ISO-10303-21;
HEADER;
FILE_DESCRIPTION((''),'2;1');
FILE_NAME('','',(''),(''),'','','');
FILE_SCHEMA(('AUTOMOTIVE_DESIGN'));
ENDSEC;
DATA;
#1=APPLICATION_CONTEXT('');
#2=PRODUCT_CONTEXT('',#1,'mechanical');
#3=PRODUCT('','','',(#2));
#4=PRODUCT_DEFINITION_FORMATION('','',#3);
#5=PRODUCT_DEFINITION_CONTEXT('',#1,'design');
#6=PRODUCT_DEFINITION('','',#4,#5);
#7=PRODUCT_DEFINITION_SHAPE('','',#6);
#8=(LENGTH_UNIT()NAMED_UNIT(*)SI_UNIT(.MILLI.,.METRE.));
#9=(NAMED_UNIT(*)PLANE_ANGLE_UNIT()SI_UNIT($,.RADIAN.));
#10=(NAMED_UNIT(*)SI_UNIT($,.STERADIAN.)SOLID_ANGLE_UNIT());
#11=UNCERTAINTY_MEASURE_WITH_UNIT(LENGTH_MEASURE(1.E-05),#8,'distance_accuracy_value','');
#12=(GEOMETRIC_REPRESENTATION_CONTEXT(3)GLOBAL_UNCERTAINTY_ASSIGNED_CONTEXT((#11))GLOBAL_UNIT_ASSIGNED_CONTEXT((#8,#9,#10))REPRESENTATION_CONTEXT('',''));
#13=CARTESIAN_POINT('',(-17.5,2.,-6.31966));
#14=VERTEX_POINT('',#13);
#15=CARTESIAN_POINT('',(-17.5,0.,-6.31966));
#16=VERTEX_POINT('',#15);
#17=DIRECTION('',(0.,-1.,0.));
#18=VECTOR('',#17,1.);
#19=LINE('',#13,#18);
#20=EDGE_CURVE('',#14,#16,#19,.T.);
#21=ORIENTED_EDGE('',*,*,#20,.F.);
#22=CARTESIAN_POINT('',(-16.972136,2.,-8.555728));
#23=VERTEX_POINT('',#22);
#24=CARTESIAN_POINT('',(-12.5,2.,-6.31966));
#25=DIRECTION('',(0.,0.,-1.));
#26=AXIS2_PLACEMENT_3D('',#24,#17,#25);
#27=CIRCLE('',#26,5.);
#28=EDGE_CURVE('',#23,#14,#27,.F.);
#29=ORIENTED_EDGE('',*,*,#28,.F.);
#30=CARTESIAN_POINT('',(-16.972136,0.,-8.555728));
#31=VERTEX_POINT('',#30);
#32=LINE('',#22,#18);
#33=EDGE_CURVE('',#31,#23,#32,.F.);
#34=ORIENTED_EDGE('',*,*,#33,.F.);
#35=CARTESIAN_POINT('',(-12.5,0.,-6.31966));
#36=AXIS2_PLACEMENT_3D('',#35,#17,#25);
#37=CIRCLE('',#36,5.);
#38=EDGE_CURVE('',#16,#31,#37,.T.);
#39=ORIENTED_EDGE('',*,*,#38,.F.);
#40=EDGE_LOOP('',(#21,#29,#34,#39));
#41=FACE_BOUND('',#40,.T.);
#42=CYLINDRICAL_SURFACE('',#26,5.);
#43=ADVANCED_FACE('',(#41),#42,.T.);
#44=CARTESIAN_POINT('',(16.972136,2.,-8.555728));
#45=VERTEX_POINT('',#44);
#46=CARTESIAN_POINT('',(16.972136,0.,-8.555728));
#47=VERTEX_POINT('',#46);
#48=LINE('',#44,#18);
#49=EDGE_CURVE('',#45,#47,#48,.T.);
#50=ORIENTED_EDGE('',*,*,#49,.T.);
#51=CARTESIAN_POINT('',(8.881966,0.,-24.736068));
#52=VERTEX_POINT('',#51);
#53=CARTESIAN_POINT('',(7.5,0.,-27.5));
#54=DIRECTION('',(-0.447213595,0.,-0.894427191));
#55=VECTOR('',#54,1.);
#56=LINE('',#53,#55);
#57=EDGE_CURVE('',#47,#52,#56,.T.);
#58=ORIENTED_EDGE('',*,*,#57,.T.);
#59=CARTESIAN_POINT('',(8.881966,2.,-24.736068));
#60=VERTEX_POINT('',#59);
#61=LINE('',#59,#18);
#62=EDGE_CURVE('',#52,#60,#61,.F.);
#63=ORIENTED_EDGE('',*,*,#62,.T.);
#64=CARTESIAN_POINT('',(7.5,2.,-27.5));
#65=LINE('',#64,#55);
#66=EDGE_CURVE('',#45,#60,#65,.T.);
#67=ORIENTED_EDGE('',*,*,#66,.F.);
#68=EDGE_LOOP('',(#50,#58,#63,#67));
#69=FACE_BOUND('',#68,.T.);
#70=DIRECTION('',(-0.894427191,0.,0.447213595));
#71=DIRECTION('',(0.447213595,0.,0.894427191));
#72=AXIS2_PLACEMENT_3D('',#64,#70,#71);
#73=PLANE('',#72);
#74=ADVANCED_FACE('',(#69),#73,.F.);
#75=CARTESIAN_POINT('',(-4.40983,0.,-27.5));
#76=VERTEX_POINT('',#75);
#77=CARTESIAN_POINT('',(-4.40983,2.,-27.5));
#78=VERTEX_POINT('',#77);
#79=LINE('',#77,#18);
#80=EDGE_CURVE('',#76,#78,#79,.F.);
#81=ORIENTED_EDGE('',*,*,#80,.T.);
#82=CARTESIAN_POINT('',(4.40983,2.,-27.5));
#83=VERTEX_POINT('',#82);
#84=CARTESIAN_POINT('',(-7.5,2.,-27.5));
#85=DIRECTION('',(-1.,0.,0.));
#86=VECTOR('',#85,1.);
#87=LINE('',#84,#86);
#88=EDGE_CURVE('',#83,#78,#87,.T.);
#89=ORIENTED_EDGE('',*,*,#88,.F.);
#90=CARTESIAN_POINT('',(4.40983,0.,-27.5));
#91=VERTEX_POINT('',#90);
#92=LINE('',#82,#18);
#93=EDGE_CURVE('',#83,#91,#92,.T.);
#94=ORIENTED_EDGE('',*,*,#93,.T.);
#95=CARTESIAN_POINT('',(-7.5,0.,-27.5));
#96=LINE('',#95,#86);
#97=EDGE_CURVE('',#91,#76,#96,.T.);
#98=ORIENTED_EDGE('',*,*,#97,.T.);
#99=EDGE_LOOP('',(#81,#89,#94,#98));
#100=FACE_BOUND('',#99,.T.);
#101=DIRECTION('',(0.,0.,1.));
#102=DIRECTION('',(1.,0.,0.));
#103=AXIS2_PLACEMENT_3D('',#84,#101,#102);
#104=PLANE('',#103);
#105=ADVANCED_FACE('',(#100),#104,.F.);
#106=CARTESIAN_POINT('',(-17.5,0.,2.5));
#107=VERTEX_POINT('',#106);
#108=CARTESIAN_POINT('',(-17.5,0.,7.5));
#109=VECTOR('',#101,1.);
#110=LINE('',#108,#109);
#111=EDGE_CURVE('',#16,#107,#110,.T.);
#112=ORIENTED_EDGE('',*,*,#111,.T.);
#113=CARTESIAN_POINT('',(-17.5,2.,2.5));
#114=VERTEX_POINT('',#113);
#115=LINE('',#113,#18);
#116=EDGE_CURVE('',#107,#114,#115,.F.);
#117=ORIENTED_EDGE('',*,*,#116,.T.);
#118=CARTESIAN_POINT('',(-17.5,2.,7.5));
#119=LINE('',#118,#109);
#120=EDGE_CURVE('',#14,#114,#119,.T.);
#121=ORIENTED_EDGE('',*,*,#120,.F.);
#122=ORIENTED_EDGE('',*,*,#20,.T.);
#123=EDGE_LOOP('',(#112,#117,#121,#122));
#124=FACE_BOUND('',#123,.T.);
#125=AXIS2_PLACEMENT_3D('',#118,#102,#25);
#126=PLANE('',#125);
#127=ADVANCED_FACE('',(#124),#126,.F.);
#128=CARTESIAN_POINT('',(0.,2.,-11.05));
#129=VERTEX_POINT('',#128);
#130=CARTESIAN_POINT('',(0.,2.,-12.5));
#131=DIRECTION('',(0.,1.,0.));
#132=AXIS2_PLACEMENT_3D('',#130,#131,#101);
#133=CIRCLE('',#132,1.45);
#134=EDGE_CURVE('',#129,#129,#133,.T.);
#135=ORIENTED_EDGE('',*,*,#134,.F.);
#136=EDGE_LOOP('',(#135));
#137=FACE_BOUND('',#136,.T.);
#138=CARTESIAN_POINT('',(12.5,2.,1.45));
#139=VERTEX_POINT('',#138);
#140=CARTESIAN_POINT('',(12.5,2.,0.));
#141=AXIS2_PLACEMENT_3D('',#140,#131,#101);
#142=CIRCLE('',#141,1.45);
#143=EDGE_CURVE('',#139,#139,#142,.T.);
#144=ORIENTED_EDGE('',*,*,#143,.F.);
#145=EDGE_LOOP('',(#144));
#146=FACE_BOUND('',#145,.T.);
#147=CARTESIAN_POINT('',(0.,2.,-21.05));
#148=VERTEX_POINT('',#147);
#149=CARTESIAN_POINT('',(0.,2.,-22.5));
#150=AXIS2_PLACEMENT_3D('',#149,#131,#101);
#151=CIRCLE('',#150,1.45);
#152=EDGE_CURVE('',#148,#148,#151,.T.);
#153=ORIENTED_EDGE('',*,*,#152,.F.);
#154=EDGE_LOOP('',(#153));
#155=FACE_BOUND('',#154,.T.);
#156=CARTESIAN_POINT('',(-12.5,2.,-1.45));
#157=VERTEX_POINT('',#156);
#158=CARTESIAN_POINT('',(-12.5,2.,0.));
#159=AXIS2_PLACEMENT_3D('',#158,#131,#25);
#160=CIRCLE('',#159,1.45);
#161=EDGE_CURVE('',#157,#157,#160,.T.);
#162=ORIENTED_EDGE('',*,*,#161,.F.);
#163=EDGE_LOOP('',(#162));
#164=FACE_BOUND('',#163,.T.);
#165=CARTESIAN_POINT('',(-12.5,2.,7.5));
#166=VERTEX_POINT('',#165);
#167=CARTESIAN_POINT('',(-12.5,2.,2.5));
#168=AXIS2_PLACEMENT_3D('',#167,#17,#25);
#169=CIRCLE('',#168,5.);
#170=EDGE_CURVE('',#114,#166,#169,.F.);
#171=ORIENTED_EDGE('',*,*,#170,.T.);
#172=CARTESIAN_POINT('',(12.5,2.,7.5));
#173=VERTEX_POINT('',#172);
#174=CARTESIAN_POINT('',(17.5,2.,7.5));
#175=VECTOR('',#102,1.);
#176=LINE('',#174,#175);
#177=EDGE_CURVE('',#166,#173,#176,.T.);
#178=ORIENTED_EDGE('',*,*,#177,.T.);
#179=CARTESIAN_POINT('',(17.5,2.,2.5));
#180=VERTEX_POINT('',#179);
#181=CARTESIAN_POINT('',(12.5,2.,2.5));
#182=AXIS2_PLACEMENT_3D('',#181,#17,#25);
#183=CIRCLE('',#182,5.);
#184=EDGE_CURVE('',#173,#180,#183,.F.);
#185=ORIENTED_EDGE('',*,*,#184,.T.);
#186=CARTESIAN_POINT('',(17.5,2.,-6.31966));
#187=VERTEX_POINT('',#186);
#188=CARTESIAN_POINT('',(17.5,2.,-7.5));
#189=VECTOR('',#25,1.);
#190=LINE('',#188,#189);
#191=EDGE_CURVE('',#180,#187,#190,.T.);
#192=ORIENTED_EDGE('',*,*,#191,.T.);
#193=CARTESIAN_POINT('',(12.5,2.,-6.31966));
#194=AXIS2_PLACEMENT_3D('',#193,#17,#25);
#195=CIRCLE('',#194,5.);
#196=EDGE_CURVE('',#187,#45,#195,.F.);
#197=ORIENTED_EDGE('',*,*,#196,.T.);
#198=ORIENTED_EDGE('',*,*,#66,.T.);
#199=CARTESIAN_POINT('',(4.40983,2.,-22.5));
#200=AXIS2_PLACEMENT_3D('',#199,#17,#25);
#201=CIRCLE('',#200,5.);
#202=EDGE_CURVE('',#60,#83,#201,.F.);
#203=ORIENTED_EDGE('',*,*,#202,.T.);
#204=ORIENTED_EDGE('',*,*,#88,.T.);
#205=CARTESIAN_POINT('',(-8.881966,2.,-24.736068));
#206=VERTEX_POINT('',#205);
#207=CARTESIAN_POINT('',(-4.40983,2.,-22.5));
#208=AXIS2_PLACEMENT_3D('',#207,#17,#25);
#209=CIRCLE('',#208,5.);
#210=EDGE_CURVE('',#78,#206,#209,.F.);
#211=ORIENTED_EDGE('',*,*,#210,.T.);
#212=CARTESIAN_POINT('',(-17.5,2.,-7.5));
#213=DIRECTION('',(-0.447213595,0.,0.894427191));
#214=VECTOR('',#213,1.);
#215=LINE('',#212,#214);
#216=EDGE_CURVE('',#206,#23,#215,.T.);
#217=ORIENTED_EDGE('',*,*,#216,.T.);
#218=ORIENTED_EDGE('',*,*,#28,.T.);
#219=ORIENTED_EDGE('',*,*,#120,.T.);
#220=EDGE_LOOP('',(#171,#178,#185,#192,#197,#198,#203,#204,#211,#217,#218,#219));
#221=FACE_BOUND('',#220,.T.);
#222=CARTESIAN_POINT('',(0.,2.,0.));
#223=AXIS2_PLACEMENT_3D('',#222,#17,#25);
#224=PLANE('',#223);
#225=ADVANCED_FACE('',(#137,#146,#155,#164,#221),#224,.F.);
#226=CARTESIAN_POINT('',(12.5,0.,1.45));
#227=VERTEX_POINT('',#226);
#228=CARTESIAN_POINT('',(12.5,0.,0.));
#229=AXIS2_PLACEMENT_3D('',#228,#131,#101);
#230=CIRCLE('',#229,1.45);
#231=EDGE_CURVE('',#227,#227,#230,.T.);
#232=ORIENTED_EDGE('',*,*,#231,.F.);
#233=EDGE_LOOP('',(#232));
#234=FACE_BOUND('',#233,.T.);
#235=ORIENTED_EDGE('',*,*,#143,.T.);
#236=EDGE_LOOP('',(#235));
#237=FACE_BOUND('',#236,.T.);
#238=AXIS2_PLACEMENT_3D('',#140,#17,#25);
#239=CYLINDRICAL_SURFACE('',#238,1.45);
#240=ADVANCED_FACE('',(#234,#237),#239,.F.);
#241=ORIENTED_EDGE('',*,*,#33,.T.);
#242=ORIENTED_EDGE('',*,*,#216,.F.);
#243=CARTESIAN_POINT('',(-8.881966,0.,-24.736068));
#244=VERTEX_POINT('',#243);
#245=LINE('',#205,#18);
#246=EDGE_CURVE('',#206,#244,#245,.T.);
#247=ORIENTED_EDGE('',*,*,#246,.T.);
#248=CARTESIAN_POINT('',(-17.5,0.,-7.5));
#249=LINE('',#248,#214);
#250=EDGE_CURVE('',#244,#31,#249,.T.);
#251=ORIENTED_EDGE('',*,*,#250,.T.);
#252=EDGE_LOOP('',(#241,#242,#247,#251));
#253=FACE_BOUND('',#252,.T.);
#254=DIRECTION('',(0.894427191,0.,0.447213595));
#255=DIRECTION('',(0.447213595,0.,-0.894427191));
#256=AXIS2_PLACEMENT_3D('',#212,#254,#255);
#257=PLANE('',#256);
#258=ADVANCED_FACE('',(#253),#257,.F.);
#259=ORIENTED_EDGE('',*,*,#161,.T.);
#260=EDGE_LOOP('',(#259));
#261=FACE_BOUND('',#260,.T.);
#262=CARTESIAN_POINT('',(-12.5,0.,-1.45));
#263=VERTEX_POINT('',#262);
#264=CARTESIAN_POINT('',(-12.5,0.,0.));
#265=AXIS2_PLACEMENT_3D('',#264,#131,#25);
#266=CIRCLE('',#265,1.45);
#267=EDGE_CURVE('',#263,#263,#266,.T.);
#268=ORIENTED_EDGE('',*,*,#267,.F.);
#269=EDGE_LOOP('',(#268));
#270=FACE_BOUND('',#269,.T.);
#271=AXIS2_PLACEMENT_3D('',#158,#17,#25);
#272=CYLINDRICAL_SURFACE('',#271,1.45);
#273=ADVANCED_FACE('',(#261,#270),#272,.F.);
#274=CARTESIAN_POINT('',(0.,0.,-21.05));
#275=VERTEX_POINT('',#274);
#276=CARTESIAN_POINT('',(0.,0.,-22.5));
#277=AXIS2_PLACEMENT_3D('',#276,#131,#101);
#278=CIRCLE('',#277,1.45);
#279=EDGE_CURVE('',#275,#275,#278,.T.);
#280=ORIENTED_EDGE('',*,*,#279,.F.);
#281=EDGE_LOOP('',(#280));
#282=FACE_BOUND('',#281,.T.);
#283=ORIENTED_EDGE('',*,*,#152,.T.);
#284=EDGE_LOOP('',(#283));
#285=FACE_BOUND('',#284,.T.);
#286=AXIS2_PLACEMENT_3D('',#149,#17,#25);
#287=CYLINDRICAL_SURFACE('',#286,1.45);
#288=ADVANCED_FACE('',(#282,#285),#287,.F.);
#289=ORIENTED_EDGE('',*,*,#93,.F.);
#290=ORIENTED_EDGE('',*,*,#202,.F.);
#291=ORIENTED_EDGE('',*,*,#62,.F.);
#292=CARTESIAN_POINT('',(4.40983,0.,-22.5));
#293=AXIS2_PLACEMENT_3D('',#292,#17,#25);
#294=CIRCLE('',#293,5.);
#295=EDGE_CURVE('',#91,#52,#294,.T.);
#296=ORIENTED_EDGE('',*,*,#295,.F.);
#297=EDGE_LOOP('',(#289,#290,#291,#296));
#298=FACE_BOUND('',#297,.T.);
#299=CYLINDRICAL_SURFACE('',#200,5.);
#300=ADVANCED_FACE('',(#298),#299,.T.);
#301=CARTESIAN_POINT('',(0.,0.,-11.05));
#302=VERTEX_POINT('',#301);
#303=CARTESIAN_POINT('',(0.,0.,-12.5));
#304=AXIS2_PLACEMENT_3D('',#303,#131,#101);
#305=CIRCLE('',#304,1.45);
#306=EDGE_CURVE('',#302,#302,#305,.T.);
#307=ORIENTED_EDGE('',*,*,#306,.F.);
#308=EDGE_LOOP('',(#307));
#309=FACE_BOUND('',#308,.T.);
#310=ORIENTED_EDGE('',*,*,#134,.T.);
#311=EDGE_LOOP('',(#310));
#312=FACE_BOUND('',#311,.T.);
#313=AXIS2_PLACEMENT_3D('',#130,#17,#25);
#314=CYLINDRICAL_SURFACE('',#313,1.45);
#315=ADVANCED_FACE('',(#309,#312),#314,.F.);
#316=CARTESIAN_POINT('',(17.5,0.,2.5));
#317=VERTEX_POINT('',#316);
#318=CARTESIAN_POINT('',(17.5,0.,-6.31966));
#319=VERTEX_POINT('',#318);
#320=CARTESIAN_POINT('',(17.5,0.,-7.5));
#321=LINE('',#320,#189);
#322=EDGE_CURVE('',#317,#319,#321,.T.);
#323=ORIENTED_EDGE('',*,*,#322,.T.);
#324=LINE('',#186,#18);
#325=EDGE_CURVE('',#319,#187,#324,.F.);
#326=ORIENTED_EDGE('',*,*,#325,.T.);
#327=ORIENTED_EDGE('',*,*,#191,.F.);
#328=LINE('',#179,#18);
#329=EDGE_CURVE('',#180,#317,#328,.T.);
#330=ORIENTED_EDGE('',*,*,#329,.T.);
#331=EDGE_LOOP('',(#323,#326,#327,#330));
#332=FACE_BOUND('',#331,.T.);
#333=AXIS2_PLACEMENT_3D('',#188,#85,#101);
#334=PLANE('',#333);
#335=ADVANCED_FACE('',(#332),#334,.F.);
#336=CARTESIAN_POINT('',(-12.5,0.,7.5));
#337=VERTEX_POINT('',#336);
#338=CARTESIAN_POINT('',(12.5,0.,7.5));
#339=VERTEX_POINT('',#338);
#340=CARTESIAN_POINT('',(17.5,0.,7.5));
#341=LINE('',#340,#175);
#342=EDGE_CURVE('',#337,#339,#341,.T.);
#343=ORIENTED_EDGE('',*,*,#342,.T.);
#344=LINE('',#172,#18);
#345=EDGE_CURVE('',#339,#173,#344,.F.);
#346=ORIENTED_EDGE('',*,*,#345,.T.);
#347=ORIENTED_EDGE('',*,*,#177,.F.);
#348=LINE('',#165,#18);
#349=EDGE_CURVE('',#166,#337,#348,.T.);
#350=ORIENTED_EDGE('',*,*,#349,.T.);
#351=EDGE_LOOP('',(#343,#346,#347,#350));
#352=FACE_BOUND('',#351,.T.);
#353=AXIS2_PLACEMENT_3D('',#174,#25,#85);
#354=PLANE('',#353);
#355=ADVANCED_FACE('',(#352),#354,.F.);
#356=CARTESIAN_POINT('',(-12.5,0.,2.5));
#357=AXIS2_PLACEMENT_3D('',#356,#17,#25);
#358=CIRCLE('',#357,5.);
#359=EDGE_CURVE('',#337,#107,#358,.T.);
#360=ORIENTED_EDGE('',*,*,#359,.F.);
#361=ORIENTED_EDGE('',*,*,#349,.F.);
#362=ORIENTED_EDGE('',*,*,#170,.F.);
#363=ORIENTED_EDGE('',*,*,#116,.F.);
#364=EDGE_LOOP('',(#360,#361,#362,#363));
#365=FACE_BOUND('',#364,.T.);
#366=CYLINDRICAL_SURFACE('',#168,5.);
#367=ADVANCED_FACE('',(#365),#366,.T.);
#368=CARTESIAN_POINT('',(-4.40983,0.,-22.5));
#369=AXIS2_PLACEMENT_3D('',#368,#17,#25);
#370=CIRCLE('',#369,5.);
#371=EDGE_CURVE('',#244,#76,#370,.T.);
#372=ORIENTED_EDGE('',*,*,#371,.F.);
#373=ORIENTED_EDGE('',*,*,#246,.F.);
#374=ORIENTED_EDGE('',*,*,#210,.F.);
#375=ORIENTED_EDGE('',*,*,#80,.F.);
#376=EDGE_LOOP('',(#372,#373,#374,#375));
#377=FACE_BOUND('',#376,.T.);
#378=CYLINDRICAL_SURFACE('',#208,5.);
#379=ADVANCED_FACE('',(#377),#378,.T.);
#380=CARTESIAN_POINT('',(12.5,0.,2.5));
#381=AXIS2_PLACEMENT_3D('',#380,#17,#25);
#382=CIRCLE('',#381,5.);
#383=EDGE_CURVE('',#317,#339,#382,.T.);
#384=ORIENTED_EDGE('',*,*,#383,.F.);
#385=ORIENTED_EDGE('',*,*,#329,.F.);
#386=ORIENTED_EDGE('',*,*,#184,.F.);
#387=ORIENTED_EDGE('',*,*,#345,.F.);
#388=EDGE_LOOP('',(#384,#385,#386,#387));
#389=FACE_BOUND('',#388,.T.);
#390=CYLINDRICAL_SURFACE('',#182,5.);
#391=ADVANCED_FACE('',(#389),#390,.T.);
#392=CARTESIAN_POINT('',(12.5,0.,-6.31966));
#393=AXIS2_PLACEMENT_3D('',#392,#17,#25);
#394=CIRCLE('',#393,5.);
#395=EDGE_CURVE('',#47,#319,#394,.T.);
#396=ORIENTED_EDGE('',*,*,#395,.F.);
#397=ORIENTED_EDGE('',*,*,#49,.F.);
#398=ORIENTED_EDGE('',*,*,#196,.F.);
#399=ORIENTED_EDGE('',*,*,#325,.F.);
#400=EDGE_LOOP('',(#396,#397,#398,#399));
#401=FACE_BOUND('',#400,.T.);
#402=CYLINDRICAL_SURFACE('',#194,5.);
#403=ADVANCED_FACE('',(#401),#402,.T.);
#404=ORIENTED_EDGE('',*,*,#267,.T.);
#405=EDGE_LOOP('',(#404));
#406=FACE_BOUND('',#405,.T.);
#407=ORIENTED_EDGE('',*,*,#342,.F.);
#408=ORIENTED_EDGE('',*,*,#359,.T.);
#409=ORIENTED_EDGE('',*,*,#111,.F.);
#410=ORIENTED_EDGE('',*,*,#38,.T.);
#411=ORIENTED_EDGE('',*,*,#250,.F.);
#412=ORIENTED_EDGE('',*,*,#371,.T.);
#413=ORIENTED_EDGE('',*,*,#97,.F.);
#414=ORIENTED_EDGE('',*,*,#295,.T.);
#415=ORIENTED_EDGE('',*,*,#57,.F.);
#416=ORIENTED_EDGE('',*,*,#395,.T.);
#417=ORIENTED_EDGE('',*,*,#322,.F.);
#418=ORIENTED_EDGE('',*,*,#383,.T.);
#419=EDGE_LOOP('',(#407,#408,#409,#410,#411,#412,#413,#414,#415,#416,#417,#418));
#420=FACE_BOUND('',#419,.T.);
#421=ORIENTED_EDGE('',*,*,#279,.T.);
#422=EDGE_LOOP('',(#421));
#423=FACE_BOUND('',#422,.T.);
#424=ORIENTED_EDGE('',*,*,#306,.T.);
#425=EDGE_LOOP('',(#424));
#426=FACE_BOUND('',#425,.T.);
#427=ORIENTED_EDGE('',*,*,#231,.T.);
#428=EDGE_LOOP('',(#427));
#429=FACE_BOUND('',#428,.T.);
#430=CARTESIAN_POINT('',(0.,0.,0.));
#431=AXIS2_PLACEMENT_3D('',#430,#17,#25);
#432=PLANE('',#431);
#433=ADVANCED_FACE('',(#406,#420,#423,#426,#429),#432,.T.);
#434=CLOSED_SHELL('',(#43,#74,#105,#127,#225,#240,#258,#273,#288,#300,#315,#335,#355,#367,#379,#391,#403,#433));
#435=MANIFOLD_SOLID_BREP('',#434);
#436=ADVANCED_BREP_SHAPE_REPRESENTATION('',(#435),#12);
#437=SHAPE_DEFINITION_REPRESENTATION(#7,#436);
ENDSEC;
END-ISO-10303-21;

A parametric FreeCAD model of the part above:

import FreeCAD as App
import Part
import Sketcher


def edges_at(feature, points):
    """Names of the edges that pass closest to the given points."""
    edges = feature.Shape.Edges
    near = lambda p: min(range(len(edges)), key=lambda i: edges[i].distToShape(Part.Vertex(*p))[0])
    return sorted({f"Edge{near(p) + 1}" for p in points})


def add_polygon(sketch, points):
    """Adds a closed chain of lines whose ends are joined by coincident constraints."""
    first, n = sketch.GeometryCount, len(points)
    for a, b in zip(points, points[1:] + points[:1]):
        sketch.addGeometry(Part.LineSegment(App.Vector(*a, 0), App.Vector(*b, 0)), False)
    for i in range(n):
        sketch.addConstraint(Sketcher.Constraint("Coincident", first + i, 2, first + (i + 1) % n, 1))

doc = App.newDocument("Part")
body = doc.addObject("PartDesign::Body", "Body")

sketch1 = body.newObject("Sketcher::SketchObject", "Sketch")
sketch1.AttachmentSupport = (doc.getObject("XZ_Plane"), [""])
sketch1.MapMode = "FlatFace"
add_polygon(sketch1, [(-17.5, -7.5), (-17.5, 7.5), (17.5, 7.5), (17.5, -7.5), (7.5, -27.5), (-7.5, -27.5)])
sketch1.addGeometry(Part.Circle(App.Vector(12.5, 0, 0), App.Vector(0, 0, 1), 1.4), False)
sketch1.addGeometry(Part.Circle(App.Vector(-12.5, 0, 0), App.Vector(0, 0, 1), 1.4), False)
sketch1.addGeometry(Part.Circle(App.Vector(0, -12.5, 0), App.Vector(0, 0, 1), 1.4), False)
sketch1.addGeometry(Part.Circle(App.Vector(0, -22.5, 0), App.Vector(0, 0, 1), 1.4), False)
sketch1.addConstraint([
    Sketcher.Constraint("Vertical", 0),
    Sketcher.Constraint("Horizontal", 1),
    Sketcher.Constraint("Vertical", 2),
    Sketcher.Constraint("Horizontal", 4),
    Sketcher.Constraint("Equal", 6, 7),
    Sketcher.Constraint("Equal", 7, 8),
    Sketcher.Constraint("Equal", 8, 9),
    Sketcher.Constraint("Symmetric", 6, 3, 7, 3, -1, 1),
    Sketcher.Constraint("Symmetric", 0, 2, 2, 2, -1, 1),
    Sketcher.Constraint("PointOnObject", 6, 3, -1),
    Sketcher.Constraint("PointOnObject", 8, 3, -2),
    Sketcher.Constraint("PointOnObject", 9, 3, -2),
    Sketcher.Constraint("Horizontal", 2, 2, 5, 2),
    Sketcher.Constraint("Equal", 4, 0),
    Sketcher.Constraint("Equal", 3, 5),
    Sketcher.Constraint("Diameter", 6, 2.9),
    Sketcher.Constraint("DistanceX", 1, 1, 1, 2, 35.0),
    Sketcher.Constraint("DistanceX", 4, 2, 4, 1, 15.0),
    Sketcher.Constraint("DistanceX", 7, 3, 6, 3, 25.0),
    Sketcher.Constraint("DistanceY", 9, 3, 8, 3, 10.0),
    Sketcher.Constraint("DistanceY", 8, 3, 0, 2, 20.0),
    Sketcher.Constraint("DistanceY", 3, 2, 9, 3, 5.0),
])
pad1 = body.newObject("PartDesign::Pad", "Pad")
pad1.Profile = sketch1
pad1.Length = 2
pad1.Reversed = True
doc.recompute()

fillet = body.newObject("PartDesign::Fillet", "Fillet")
fillet.Base = (pad1, edges_at(pad1, [
    (17.5, 1, 7.5),
    (-17.5, 1, 7.5),
    (-17.5, 1, -7.5),
    (-7.5, 1, -27.5),
    (7.5, 1, -27.5),
    (17.5, 1, -7.5),
]))
fillet.Radius = 5

doc.recompute()
